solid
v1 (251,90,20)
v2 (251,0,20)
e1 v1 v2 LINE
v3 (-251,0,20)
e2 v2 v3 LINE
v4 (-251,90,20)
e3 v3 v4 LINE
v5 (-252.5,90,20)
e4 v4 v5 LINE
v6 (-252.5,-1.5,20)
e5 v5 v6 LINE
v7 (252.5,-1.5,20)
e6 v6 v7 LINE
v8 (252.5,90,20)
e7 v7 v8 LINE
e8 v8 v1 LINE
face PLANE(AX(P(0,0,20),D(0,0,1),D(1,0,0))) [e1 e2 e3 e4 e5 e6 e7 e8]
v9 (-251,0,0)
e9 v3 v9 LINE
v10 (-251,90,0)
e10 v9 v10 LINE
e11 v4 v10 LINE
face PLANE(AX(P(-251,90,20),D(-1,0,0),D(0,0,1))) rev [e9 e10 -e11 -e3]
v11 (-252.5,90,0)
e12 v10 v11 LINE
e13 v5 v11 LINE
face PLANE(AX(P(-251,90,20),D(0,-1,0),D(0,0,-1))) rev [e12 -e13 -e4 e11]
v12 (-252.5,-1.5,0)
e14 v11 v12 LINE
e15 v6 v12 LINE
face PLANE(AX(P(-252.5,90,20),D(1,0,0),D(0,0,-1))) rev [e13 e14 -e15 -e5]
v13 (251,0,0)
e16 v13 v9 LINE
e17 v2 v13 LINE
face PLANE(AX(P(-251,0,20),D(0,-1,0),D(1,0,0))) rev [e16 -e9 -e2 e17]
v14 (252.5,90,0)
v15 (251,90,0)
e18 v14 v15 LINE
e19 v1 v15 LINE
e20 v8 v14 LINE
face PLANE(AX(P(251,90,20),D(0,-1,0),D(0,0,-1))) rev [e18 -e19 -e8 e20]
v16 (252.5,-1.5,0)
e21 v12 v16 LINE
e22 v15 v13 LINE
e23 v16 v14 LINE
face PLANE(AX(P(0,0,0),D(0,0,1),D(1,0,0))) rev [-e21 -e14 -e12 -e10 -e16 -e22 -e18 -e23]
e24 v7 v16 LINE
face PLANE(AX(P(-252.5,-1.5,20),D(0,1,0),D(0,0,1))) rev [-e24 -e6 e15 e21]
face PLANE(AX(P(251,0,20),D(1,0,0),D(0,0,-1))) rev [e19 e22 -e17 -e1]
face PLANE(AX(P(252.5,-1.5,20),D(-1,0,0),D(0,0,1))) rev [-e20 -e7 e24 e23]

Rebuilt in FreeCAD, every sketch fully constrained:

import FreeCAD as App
import Part
import Sketcher
from FreeCAD import Vector


def add_polygon(sketch, points):
    """Adds a closed chain of lines whose ends are joined by coincident constraints."""
    first, n = sketch.GeometryCount, len(points)
    for a, b in zip(points, points[1:] + points[:1]):
        sketch.addGeometry(Part.LineSegment(App.Vector(*a, 0), App.Vector(*b, 0)), False)
    for i in range(n):
        sketch.addConstraint(Sketcher.Constraint("Coincident", first + i, 2, first + (i + 1) % n, 1))

doc = App.newDocument("Part")
params = doc.addObject("Spreadsheet::Sheet", "Params")
for row, (alias, value) in enumerate([
    ("sketch1_width", "505 mm"),
    ("sketch1_width2", "502 mm"),
    ("sketch1_height", "90 mm"),
    ("sketch1_height2", "91.5 mm"),
    ("pad1_length", "20 mm"),
], start=1):
    params.set(f"A{row}", alias)
    params.set(f"B{row}", "=" + value)
    params.setAlias(f"B{row}", alias)

body = doc.addObject("PartDesign::Body", "Body")

# Sketch on XY plane
sketch1 = body.newObject("Sketcher::SketchObject", "Sketch")
sketch1.AttachmentSupport = (doc.getObject("XY_Plane"), [""])
sketch1.MapMode = "FlatFace"
add_polygon(sketch1, [(-251, 0), (-251, 90), (-252.5, 90), (-252.5, -1.5), (252.5, -1.5), (252.5, 90), (251, 90), (251, 0)])  # lines 0-7
sketch1.addConstraint([
    Sketcher.Constraint("Vertical", 0),
    Sketcher.Constraint("Horizontal", 1),
    Sketcher.Constraint("Vertical", 2),
    Sketcher.Constraint("Horizontal", 3),
    Sketcher.Constraint("Vertical", 4),
    Sketcher.Constraint("Horizontal", 5),
    Sketcher.Constraint("Vertical", 6),
    Sketcher.Constraint("Horizontal", 7),
    Sketcher.Constraint("Symmetric", 6, 2, 7, 2, -1, 1),
    Sketcher.Constraint("Symmetric", 1, 2, 4, 2, -2),
    Sketcher.Constraint("DistanceX", 3, 1, 3, 2, 505.0),
    Sketcher.Constraint("DistanceX", 7, 2, 7, 1, 502.0),
    Sketcher.Constraint("DistanceY", 0, 1, 0, 2, 90.0),
    Sketcher.Constraint("DistanceY", 2, 2, 2, 1, 91.5),
])
sketch1.setExpression("Constraints[18]", "Params.sketch1_width")
sketch1.setExpression("Constraints[19]", "Params.sketch1_width2")
sketch1.setExpression("Constraints[20]", "Params.sketch1_height")
sketch1.setExpression("Constraints[21]", "Params.sketch1_height2")
pad1 = body.newObject("PartDesign::Pad", "Pad")
pad1.Profile = sketch1
pad1.setExpression("Length", "Params.pad1_length")

doc.recompute()
